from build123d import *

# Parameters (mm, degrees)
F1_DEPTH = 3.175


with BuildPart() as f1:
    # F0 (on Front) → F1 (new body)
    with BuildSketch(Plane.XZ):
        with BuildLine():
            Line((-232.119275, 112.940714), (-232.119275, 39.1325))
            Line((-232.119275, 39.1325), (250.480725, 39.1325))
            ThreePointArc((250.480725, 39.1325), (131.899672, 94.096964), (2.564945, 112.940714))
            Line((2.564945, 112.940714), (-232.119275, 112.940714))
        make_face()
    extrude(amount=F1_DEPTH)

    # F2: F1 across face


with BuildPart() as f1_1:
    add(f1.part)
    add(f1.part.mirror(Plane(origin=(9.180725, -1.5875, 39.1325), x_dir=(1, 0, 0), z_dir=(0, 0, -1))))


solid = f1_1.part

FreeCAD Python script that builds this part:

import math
import FreeCAD as App
import Part
import Sketcher

V = App.Vector
Q = App.Units.Quantity

doc = App.newDocument("Part")
body = doc.addObject("PartDesign::Body", "Body")

sketch1 = doc.addObject("Sketcher::SketchObject", "Sketch")
body.addObject(sketch1)
sketch1.AttachmentSupport = (doc.XZ_Plane, [""])
sketch1.MapMode = "FlatFace"
sketch1.addGeometry([
    Part.LineSegment(V(-232, 113, 0), V(-232, 39, 0)),
    Part.LineSegment(V(-232, 39, 0), V(250, 39, 0)),
    Part.ArcOfCircle(Part.Circle(V(3, -340, 0), V(0, 0, 1), 453), math.radians(57), math.radians(90)),
    Part.LineSegment(V(3, 113, 0), V(-232, 113, 0)),
], False)
sketch1.addConstraint([
    Sketcher.Constraint("Coincident", 0, 2, 1, 1),
    Sketcher.Constraint("Coincident", 1, 2, 2, 1),
    Sketcher.Constraint("Tangent", 2, 2, 3, 1),
    Sketcher.Constraint("Coincident", 3, 2, 0, 1),
    Sketcher.Constraint("Vertical", 0),
    Sketcher.Constraint("Horizontal", 1),
    Sketcher.Constraint("Horizontal", 3),
    Sketcher.Constraint("DistanceX", 1, 1, 1, 2, Q("19 in")),
    Sketcher.Constraint("Radius", 2, 453.268577),
    Sketcher.Constraint("DistanceX", 3, 2, 3, 1, 234.68422),
    Sketcher.Constraint("DistanceY", -1, 1, 0, 2, 39.1325),
    Sketcher.Constraint("DistanceX", -1, 1, 2, 3, 2.564941),
])
pad1 = doc.addObject("PartDesign::Pad", "Pad")
body.addObject(pad1)
pad1.Profile = sketch1
pad1.Length = Q("0.125 in")
body2 = doc.addObject("PartDesign::Body", "Body001")
doc.recompute()

body2.BaseFeature = body
doc.recompute()

mirroring = doc.addObject("Part::Mirroring", "Mirroring")
mirroring.Source = body
mirroring.Base = V(9.180725, -1.5875, 39.1325)
mirroring.Normal = V(0, 0, -1)
body3 = doc.addObject("PartDesign::Body", "Body002")
body3.BaseFeature = mirroring
boolean = doc.addObject("PartDesign::Boolean", "Boolean")
body2.addObject(boolean)
boolean.Type = "Fuse"
boolean.addObjects([body3])
doc.recompute()
mirroring.Visibility = False

doc.recompute()
